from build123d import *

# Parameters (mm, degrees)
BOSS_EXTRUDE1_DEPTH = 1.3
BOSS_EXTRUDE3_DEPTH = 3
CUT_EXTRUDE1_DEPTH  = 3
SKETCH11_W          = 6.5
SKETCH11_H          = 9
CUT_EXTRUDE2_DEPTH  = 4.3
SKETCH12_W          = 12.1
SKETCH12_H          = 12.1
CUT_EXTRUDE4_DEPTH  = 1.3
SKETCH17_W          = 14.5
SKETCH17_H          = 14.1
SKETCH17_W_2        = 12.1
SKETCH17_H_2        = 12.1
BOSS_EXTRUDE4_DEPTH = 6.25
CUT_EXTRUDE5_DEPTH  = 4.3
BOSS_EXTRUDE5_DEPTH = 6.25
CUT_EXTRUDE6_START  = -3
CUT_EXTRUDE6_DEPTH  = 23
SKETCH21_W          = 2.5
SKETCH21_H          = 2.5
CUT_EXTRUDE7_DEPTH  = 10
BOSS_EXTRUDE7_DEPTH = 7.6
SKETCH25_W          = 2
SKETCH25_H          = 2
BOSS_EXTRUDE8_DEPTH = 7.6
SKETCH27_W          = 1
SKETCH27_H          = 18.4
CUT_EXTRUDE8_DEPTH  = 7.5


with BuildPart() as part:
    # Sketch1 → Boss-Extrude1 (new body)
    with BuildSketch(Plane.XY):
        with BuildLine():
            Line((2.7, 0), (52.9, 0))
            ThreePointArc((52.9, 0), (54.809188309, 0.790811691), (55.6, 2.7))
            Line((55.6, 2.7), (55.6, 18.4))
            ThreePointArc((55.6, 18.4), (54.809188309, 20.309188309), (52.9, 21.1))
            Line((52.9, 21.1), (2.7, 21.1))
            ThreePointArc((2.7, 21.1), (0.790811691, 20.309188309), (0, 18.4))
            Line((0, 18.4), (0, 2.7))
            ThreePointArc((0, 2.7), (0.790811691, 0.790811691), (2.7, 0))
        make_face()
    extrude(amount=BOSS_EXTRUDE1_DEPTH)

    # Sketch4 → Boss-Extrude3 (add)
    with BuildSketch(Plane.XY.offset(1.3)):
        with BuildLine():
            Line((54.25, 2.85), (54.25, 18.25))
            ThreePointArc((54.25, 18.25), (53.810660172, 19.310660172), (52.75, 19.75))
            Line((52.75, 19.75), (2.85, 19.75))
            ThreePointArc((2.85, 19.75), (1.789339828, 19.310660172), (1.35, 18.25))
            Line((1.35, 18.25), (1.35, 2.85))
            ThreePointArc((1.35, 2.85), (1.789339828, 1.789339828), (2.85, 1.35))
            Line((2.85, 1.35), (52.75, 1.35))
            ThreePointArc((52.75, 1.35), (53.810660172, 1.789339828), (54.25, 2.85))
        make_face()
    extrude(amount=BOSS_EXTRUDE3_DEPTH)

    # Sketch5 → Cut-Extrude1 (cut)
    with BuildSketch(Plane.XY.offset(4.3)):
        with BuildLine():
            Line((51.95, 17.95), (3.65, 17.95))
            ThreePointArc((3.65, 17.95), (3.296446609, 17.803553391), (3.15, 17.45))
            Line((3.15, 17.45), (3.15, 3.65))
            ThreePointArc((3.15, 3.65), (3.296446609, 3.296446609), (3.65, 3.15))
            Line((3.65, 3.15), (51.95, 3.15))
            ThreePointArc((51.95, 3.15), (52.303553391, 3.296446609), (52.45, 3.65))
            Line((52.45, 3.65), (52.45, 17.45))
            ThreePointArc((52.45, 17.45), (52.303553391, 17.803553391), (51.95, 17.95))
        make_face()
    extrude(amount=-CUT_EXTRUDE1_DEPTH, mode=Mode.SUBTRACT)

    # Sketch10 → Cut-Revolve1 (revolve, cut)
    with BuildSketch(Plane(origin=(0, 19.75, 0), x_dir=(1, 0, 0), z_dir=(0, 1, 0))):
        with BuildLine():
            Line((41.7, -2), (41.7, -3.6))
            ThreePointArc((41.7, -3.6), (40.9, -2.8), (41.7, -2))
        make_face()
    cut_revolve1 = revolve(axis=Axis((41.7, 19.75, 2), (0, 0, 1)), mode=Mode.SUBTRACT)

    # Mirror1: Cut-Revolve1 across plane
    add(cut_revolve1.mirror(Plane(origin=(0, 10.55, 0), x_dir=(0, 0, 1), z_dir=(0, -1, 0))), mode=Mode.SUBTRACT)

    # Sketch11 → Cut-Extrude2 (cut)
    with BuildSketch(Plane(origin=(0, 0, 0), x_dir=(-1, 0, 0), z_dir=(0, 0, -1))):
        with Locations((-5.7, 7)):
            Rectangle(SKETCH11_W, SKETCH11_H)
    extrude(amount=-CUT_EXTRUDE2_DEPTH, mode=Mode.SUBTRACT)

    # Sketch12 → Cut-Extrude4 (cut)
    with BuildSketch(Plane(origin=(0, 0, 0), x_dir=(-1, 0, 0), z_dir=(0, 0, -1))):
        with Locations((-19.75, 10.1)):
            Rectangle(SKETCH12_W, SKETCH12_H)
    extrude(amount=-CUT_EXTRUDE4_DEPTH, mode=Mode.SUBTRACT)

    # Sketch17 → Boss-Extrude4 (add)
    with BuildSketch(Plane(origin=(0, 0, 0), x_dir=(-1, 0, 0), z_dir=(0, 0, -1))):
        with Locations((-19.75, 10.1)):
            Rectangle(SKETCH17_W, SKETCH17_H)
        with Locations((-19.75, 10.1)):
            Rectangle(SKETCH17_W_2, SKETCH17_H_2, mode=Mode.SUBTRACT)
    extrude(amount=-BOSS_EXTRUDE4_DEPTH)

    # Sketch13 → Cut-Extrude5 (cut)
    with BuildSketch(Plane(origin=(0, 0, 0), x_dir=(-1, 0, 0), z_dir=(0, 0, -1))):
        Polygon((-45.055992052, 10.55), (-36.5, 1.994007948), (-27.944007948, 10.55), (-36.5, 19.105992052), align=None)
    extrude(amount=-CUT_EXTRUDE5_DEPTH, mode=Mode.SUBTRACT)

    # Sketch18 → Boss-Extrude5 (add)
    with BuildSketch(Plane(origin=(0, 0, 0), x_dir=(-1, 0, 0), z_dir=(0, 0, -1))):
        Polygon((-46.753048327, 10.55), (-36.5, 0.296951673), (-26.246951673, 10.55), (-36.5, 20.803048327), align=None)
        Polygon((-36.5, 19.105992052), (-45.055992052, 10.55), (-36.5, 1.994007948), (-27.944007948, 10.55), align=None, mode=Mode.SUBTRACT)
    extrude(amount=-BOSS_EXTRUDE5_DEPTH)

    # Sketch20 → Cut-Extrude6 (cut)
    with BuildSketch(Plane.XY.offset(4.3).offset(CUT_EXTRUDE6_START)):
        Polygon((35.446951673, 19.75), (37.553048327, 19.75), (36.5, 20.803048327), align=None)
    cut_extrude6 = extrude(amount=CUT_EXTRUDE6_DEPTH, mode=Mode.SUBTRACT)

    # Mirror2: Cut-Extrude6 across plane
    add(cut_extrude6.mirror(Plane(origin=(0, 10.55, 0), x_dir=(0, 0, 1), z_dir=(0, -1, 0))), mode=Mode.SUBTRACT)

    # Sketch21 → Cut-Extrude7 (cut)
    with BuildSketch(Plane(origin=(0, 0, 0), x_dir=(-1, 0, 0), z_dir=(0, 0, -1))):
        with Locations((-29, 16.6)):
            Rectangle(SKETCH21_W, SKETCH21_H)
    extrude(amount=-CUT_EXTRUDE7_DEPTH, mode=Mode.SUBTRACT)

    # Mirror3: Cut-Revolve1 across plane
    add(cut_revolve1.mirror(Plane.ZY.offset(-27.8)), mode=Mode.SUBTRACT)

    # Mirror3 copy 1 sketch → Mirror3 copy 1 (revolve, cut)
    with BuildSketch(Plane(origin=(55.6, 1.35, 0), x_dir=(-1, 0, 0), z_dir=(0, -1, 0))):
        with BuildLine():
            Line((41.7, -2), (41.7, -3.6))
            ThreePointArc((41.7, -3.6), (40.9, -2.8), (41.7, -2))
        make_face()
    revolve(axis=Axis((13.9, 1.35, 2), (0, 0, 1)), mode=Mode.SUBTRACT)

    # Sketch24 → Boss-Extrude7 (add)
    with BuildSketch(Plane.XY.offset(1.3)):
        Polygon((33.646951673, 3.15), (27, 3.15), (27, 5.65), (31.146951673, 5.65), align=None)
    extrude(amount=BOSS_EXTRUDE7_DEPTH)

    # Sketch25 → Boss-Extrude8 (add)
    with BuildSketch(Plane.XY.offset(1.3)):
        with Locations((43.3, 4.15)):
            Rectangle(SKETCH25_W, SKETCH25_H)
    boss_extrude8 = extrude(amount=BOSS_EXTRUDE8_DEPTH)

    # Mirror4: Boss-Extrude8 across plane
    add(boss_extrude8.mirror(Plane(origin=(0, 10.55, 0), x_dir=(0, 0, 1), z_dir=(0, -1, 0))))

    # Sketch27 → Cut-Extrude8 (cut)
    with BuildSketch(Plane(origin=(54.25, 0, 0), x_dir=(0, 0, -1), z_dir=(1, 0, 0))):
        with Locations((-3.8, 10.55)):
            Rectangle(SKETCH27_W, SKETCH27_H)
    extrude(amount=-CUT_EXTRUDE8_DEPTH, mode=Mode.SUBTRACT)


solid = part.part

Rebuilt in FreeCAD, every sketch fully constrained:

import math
import FreeCAD as App
import Part
import Sketcher
from FreeCAD import Vector
Q = App.Units.Quantity


def add_polygon(sketch, points):
    """Adds a closed chain of lines whose ends are joined by coincident constraints."""
    first, n = sketch.GeometryCount, len(points)
    for a, b in zip(points, points[1:] + points[:1]):
        sketch.addGeometry(Part.LineSegment(App.Vector(*a, 0), App.Vector(*b, 0)), False)
    for i in range(n):
        sketch.addConstraint(Sketcher.Constraint("Coincident", first + i, 2, first + (i + 1) % n, 1))

doc = App.newDocument("Part")
params = doc.addObject("Spreadsheet::Sheet", "Params")
for row, (alias, value) in enumerate([
    ("sketch1_radius", "2.7 mm"),
    ("sketch1_width", "50.2 mm"),
    ("sketch1_height", "15.7 mm"),
    ("pad1_length", "1.3 mm"),
    ("sketch2_radius", "1.5 mm"),
    ("sketch2_width", "49.9 mm"),
    ("sketch2_height", "15.4 mm"),
    ("pad2_length", "3 mm"),
    ("sketch3_radius", "0.5 mm"),
    ("sketch3_width", "48.3 mm"),
    ("sketch3_height", "13.8 mm"),
    ("pocket1_length", "3 mm"),
    ("sketch4_radius", "0.8 mm"),
    ("groove_angle", "360 deg"),
    ("sketch5_height", "9 mm"),
    ("sketch5_width", "6.5 mm"),
    ("pocket2_length", "4.3 mm"),
    ("sketch6_width", "12.1 mm"),
    ("pocket3_length", "1.3 mm"),
    ("sketch7_width", "14.5 mm"),
    ("sketch7_width2", "12.1 mm"),
    ("sketch7_height", "14.1 mm"),
    ("pad3_length", "6.25 mm"),
    ("sketch8_length", "12.1 mm"),
    ("pocket4_length", "4.3 mm"),
    ("sketch9_length", "14.5 mm"),
    ("sketch9_length2", "12.1 mm"),
    ("pad4_length", "6.25 mm"),
    ("pocket5_length", "23 mm"),
    ("sketch11_width", "2.5 mm"),
    ("pocket6_length", "10 mm"),
    ("sketch12_radius", "0.8 mm"),
    ("groove2_angle", "360 deg"),
    ("sketch13_height", "2.5 mm"),
    ("pad5_length", "7.6 mm"),
    ("sketch14_width", "2 mm"),
    ("pad6_length", "7.6 mm"),
    ("sketch15_height", "1 mm"),
    ("sketch15_width", "18.4 mm"),
    ("pocket7_length", "7.5 mm"),
], start=1):
    params.set(f"A{row}", alias)
    params.set(f"B{row}", "=" + value)
    params.setAlias(f"B{row}", alias)

body = doc.addObject("PartDesign::Body", "Body")

# Sketch on XY plane
sketch1 = body.newObject("Sketcher::SketchObject", "Sketch")
sketch1.AttachmentSupport = (doc.getObject("XY_Plane"), [""])
sketch1.MapMode = "FlatFace"
sketch1.addGeometry(Part.LineSegment(Vector(2.7, 0, 0), Vector(52.9, 0, 0)), False)
sketch1.addGeometry(Part.ArcOfCircle(Part.Circle(Vector(52.9, 2.7, 0), Vector(0, 0, 1), 2.7), math.radians(-90), math.radians(0)), False)
sketch1.addGeometry(Part.LineSegment(Vector(55.6, 2.7, 0), Vector(55.6, 18.4, 0)), False)
sketch1.addGeometry(Part.ArcOfCircle(Part.Circle(Vector(52.9, 18.4, 0), Vector(0, 0, 1), 2.7), math.radians(0), math.radians(90)), False)
sketch1.addGeometry(Part.LineSegment(Vector(52.9, 21.1, 0), Vector(2.7, 21.1, 0)), False)
sketch1.addGeometry(Part.ArcOfCircle(Part.Circle(Vector(2.7, 18.4, 0), Vector(0, 0, 1), 2.7), math.radians(90), math.radians(180)), False)
sketch1.addGeometry(Part.LineSegment(Vector(0, 18.4, 0), Vector(0, 2.7, 0)), False)
sketch1.addGeometry(Part.ArcOfCircle(Part.Circle(Vector(2.7, 2.7, 0), Vector(0, 0, 1), 2.7), math.radians(-180), math.radians(-90)), False)
sketch1.addConstraint(Sketcher.Constraint("Tangent", 0, 2, 1, 1))
sketch1.addConstraint(Sketcher.Constraint("Tangent", 1, 2, 2, 1))
sketch1.addConstraint(Sketcher.Constraint("Tangent", 2, 2, 3, 1))
sketch1.addConstraint(Sketcher.Constraint("Tangent", 3, 2, 4, 1))
sketch1.addConstraint(Sketcher.Constraint("Tangent", 4, 2, 5, 1))
sketch1.addConstraint(Sketcher.Constraint("Tangent", 5, 2, 6, 1))
sketch1.addConstraint(Sketcher.Constraint("Tangent", 6, 2, 7, 1))
sketch1.addConstraint(Sketcher.Constraint("Tangent", 7, 2, 0, 1))
sketch1.addConstraint(Sketcher.Constraint("Horizontal", 0))
sketch1.addConstraint(Sketcher.Constraint("Vertical", 2))
sketch1.addConstraint(Sketcher.Constraint("Horizontal", 4))
sketch1.addConstraint(Sketcher.Constraint("Vertical", 6))
sketch1.addConstraint(Sketcher.Constraint("Equal", 1, 3))
sketch1.addConstraint(Sketcher.Constraint("Equal", 3, 5))
sketch1.addConstraint(Sketcher.Constraint("Equal", 5, 7))
sketch1.addConstraint(Sketcher.Constraint("PointOnObject", 0, 2, -1))
sketch1.addConstraint(Sketcher.Constraint("PointOnObject", 5, 2, -2))
sketch1.addConstraint(Sketcher.Constraint("Radius", 1, 2.7))
sketch1.addConstraint(Sketcher.Constraint("DistanceX", 0, 1, 0, 2, 50.2))
sketch1.addConstraint(Sketcher.Constraint("DistanceY", 2, 1, 2, 2, 15.7))
sketch1.setExpression("Constraints[17]", "Params.sketch1_radius")
sketch1.setExpression("Constraints[18]", "Params.sketch1_width")
sketch1.setExpression("Constraints[19]", "Params.sketch1_height")
pad1 = body.newObject("PartDesign::Pad", "Pad")
pad1.Profile = sketch1
pad1.setExpression("Length", "Params.pad1_length")

# Sketch on XY plane
sketch2 = body.newObject("Sketcher::SketchObject", "Sketch001")
sketch2.AttachmentSupport = (doc.getObject("XY_Plane"), [""])
sketch2.MapMode = "FlatFace"
sketch2.AttachmentOffset = App.Placement(Vector(0, 0, 1.3), App.Rotation())
sketch2.addGeometry(Part.LineSegment(Vector(54.2, 2.9, 0), Vector(54.2, 18.2, 0)), False)
sketch2.addGeometry(Part.ArcOfCircle(Part.Circle(Vector(52.8, 18.3, 0), Vector(0, 0, 1), 1.5), math.radians(0), math.radians(90)), False)
sketch2.addGeometry(Part.LineSegment(Vector(52.8, 19.8, 0), Vector(2.9, 19.8, 0)), False)
sketch2.addGeometry(Part.ArcOfCircle(Part.Circle(Vector(2.8, 18.3, 0), Vector(0, 0, 1), 1.5), math.radians(90), math.radians(180)), False)
sketch2.addGeometry(Part.LineSegment(Vector(1.4, 18.2, 0), Vector(1.4, 2.9, 0)), False)
sketch2.addGeometry(Part.ArcOfCircle(Part.Circle(Vector(2.8, 2.8, 0), Vector(0, 0, 1), 1.5), math.radians(180), math.radians(270)), False)
sketch2.addGeometry(Part.LineSegment(Vector(2.9, 1.4, 0), Vector(52.8, 1.4, 0)), False)
sketch2.addGeometry(Part.ArcOfCircle(Part.Circle(Vector(52.8, 2.8, 0), Vector(0, 0, 1), 1.5), math.radians(-90), math.radians(0)), False)
sketch2.addConstraint(Sketcher.Constraint("Tangent", 0, 2, 1, 1))
sketch2.addConstraint(Sketcher.Constraint("Tangent", 1, 2, 2, 1))
sketch2.addConstraint(Sketcher.Constraint("Tangent", 2, 2, 3, 1))
sketch2.addConstraint(Sketcher.Constraint("Tangent", 3, 2, 4, 1))
sketch2.addConstraint(Sketcher.Constraint("Tangent", 4, 2, 5, 1))
sketch2.addConstraint(Sketcher.Constraint("Tangent", 5, 2, 6, 1))
sketch2.addConstraint(Sketcher.Constraint("Tangent", 6, 2, 7, 1))
sketch2.addConstraint(Sketcher.Constraint("Tangent", 7, 2, 0, 1))
sketch2.addConstraint(Sketcher.Constraint("Vertical", 0))
sketch2.addConstraint(Sketcher.Constraint("Horizontal", 2))
sketch2.addConstraint(Sketcher.Constraint("Vertical", 4))
sketch2.addConstraint(Sketcher.Constraint("Horizontal", 6))
sketch2.addConstraint(Sketcher.Constraint("Equal", 1, 3))
sketch2.addConstraint(Sketcher.Constraint("Equal", 3, 5))
sketch2.addConstraint(Sketcher.Constraint("Equal", 5, 7))
sketch2.addConstraint(Sketcher.Constraint("Radius", 1, 1.5))
sketch2.addConstraint(Sketcher.Constraint("DistanceX", 2, 2, 2, 1, 49.9))
sketch2.addConstraint(Sketcher.Constraint("DistanceY", 0, 1, 0, 2, 15.4))
sketch2.addConstraint(Sketcher.Constraint("DistanceX", -1, 1, 1, 3, 52.75))
sketch2.addConstraint(Sketcher.Constraint("DistanceY", -1, 1, 1, 3, 18.25))
sketch2.setExpression("Constraints[15]", "Params.sketch2_radius")
sketch2.setExpression("Constraints[16]", "Params.sketch2_width")
sketch2.setExpression("Constraints[17]", "Params.sketch2_height")
pad2 = body.newObject("PartDesign::Pad", "Pad001")
pad2.Profile = sketch2
pad2.setExpression("Length", "Params.pad2_length")

# Sketch on XY plane
sketch3 = body.newObject("Sketcher::SketchObject", "Sketch002")
sketch3.AttachmentSupport = (doc.getObject("XY_Plane"), [""])
sketch3.MapMode = "FlatFace"
sketch3.AttachmentOffset = App.Placement(Vector(0, 0, 4.3), App.Rotation())
sketch3.addGeometry(Part.LineSegment(Vector(51.95, 17.95, 0), Vector(3.65, 17.95, 0)), False)
sketch3.addGeometry(Part.ArcOfCircle(Part.Circle(Vector(3.65, 17.45, 0), Vector(0, 0, 1), 0.5), math.radians(90), math.radians(180)), False)
sketch3.addGeometry(Part.LineSegment(Vector(3.15, 17.45, 0), Vector(3.15, 3.65, 0)), False)
sketch3.addGeometry(Part.ArcOfCircle(Part.Circle(Vector(3.65, 3.65, 0), Vector(0, 0, 1), 0.5), math.radians(180), math.radians(270)), False)
sketch3.addGeometry(Part.LineSegment(Vector(3.65, 3.15, 0), Vector(51.95, 3.15, 0)), False)
sketch3.addGeometry(Part.ArcOfCircle(Part.Circle(Vector(51.95, 3.65, 0), Vector(0, 0, 1), 0.5), math.radians(-90), math.radians(0)), False)
sketch3.addGeometry(Part.LineSegment(Vector(52.45, 3.65, 0), Vector(52.45, 17.45, 0)), False)
sketch3.addGeometry(Part.ArcOfCircle(Part.Circle(Vector(51.95, 17.45, 0), Vector(0, 0, 1), 0.5), math.radians(0), math.radians(90)), False)
sketch3.addConstraint(Sketcher.Constraint("Tangent", 0, 2, 1, 1))
sketch3.addConstraint(Sketcher.Constraint("Tangent", 1, 2, 2, 1))
sketch3.addConstraint(Sketcher.Constraint("Tangent", 2, 2, 3, 1))
sketch3.addConstraint(Sketcher.Constraint("Tangent", 3, 2, 4, 1))
sketch3.addConstraint(Sketcher.Constraint("Tangent", 4, 2, 5, 1))
sketch3.addConstraint(Sketcher.Constraint("Tangent", 5, 2, 6, 1))
sketch3.addConstraint(Sketcher.Constraint("Tangent", 6, 2, 7, 1))
sketch3.addConstraint(Sketcher.Constraint("Tangent", 7, 2, 0, 1))
sketch3.addConstraint(Sketcher.Constraint("Horizontal", 0))
sketch3.addConstraint(Sketcher.Constraint("Vertical", 2))
sketch3.addConstraint(Sketcher.Constraint("Horizontal", 4))
sketch3.addConstraint(Sketcher.Constraint("Vertical", 6))
sketch3.addConstraint(Sketcher.Constraint("Equal", 1, 3))
sketch3.addConstraint(Sketcher.Constraint("Equal", 3, 5))
sketch3.addConstraint(Sketcher.Constraint("Equal", 5, 7))
sketch3.addConstraint(Sketcher.Constraint("Radius", 1, 0.5))
sketch3.addConstraint(Sketcher.Constraint("DistanceX", 0, 2, 0, 1, 48.3))
sketch3.addConstraint(Sketcher.Constraint("DistanceY", 2, 2, 2, 1, 13.8))
sketch3.addConstraint(Sketcher.Constraint("DistanceX", -1, 1, 1, 3, 3.65))
sketch3.addConstraint(Sketcher.Constraint("DistanceY", -1, 1, 1, 3, 17.45))
sketch3.setExpression("Constraints[15]", "Params.sketch3_radius")
sketch3.setExpression("Constraints[16]", "Params.sketch3_width")
sketch3.setExpression("Constraints[17]", "Params.sketch3_height")
pocket1 = body.newObject("PartDesign::Pocket", "Pocket")
pocket1.Profile = sketch3
pocket1.setExpression("Length", "Params.pocket1_length")

# Sketch on XZ plane
sketch4 = body.newObject("Sketcher::SketchObject", "Sketch003")
sketch4.AttachmentSupport = (doc.getObject("XZ_Plane"), [""])
sketch4.MapMode = "FlatFace"
sketch4.AttachmentOffset = App.Placement(Vector(0, 0, -19.75), App.Rotation())
sketch4.addGeometry(Part.LineSegment(Vector(41.7, 3.6, 0), Vector(41.7, 2, 0)), False)
sketch4.addGeometry(Part.ArcOfCircle(Part.Circle(Vector(41.7, 2.8, 0), Vector(0, 0, 1), 0.8), math.radians(90), math.radians(270)), False)
sketch4.addGeometry(Part.LineSegment(Vector(41.7, 2, 0), Vector(41.7, 3.6, 0)), True)  # axis
sketch4.addConstraint(Sketcher.Constraint("Coincident", 0, 1, 1, 1))
sketch4.addConstraint(Sketcher.Constraint("Coincident", 1, 2, 0, 2))
sketch4.addConstraint(Sketcher.Constraint("Vertical", 0))
sketch4.addConstraint(Sketcher.Constraint("Vertical", 2))
sketch4.addConstraint(Sketcher.Constraint("Coincident", 2, 1, 1, 2))
sketch4.addConstraint(Sketcher.Constraint("Vertical", 1, 3, 0, 1))
sketch4.addConstraint(Sketcher.Constraint("Equal", 0, 2))
sketch4.addConstraint(Sketcher.Constraint("Radius", 1, 0.8))
sketch4.addConstraint(Sketcher.Constraint("DistanceY", -1, 1, 1, 2, 2.0))
sketch4.addConstraint(Sketcher.Constraint("DistanceX", -1, 1, 1, 3, 41.7))
sketch4.setExpression("Constraints[7]", "Params.sketch4_radius")
groove = body.newObject("PartDesign::Groove", "Groove")
groove.Profile = sketch4
groove.ReferenceAxis = (sketch4, ["Axis0"])
groove.setExpression("Angle", "Params.groove_angle")
doc.recompute()

datumplane = body.newObject("PartDesign::Plane", "DatumPlane")
datumplane.AttachmentSupport = (doc.getObject("XZ_Plane"), [""])
datumplane.MapMode = "FlatFace"
datumplane.AttachmentOffset = App.Placement(Vector(0, 0, -10.55), App.Rotation())
mirrored = body.newObject("PartDesign::Mirrored", "Mirrored")
mirrored.Originals = [groove]
mirrored.MirrorPlane = (datumplane, [""])
body.Tip = mirrored

# Sketch on XY plane
sketch5 = body.newObject("Sketcher::SketchObject", "Sketch004")
sketch5.AttachmentSupport = (doc.getObject("XY_Plane"), [""])
sketch5.MapMode = "FlatFace"
add_polygon(sketch5, [(9, 12), (9, 2), (2, 2), (2, 12)])  # lines 0-3
sketch5.addConstraint(Sketcher.Constraint("Vertical", 0))
sketch5.addConstraint(Sketcher.Constraint("Horizontal", 1))
sketch5.addConstraint(Sketcher.Constraint("Vertical", 2))
sketch5.addConstraint(Sketcher.Constraint("Horizontal", 3))
sketch5.addConstraint(Sketcher.Constraint("DistanceY", 0, 2, 0, 1, 9.0))
sketch5.addConstraint(Sketcher.Constraint("DistanceX", 1, 2, 1, 1, 6.5))
sketch5.addConstraint(Sketcher.Constraint("DistanceY", -1, 1, 0, 2, 2.5))
sketch5.addConstraint(Sketcher.Constraint("DistanceX", -1, 1, 0, 2, 8.95))
sketch5.setExpression("Constraints[8]", "Params.sketch5_height")
sketch5.setExpression("Constraints[9]", "Params.sketch5_width")
pocket2 = body.newObject("PartDesign::Pocket", "Pocket001")
pocket2.Profile = sketch5
pocket2.setExpression("Length", "Params.pocket2_length")
pocket2.Reversed = True

# Sketch on XY plane
sketch6 = body.newObject("Sketcher::SketchObject", "Sketch005")
sketch6.AttachmentSupport = (doc.getObject("XY_Plane"), [""])
sketch6.MapMode = "FlatFace"
add_polygon(sketch6, [(26, 16), (26, 4), (14, 4), (14, 16)])  # lines 0-3
sketch6.addConstraint(Sketcher.Constraint("Vertical", 0))
sketch6.addConstraint(Sketcher.Constraint("Horizontal", 1))
sketch6.addConstraint(Sketcher.Constraint("Vertical", 2))
sketch6.addConstraint(Sketcher.Constraint("Horizontal", 3))
sketch6.addConstraint(Sketcher.Constraint("Equal", 3, 0))
sketch6.addConstraint(Sketcher.Constraint("DistanceX", 1, 2, 1, 1, 12.1))
sketch6.addConstraint(Sketcher.Constraint("DistanceX", -1, 1, 0, 2, 25.8))
sketch6.addConstraint(Sketcher.Constraint("DistanceY", -1, 1, 0, 2, 4.05))
sketch6.setExpression("Constraints[9]", "Params.sketch6_width")
pocket3 = body.newObject("PartDesign::Pocket", "Pocket002")
pocket3.Profile = sketch6
pocket3.setExpression("Length", "Params.pocket3_length")
pocket3.Reversed = True

# Sketch on XY plane
sketch7 = body.newObject("Sketcher::SketchObject", "Sketch006")
sketch7.AttachmentSupport = (doc.getObject("XY_Plane"), [""])
sketch7.MapMode = "FlatFace"
add_polygon(sketch7, [(27, 17), (27, 3), (12, 3), (12, 17)])  # lines 0-3
add_polygon(sketch7, [(14, 4), (26, 4), (26, 16), (14, 16)])  # lines 4-7
sketch7.addConstraint(Sketcher.Constraint("Vertical", 0))
sketch7.addConstraint(Sketcher.Constraint("Horizontal", 1))
sketch7.addConstraint(Sketcher.Constraint("Vertical", 2))
sketch7.addConstraint(Sketcher.Constraint("Horizontal", 3))
sketch7.addConstraint(Sketcher.Constraint("Horizontal", 4))
sketch7.addConstraint(Sketcher.Constraint("Vertical", 5))
sketch7.addConstraint(Sketcher.Constraint("Horizontal", 6))
sketch7.addConstraint(Sketcher.Constraint("Vertical", 7))
sketch7.addConstraint(Sketcher.Constraint("Equal", 6, 5))
sketch7.addConstraint(Sketcher.Constraint("DistanceX", 1, 2, 1, 1, 14.5))
sketch7.addConstraint(Sketcher.Constraint("DistanceX", 4, 1, 4, 2, 12.1))
sketch7.addConstraint(Sketcher.Constraint("DistanceY", 0, 2, 0, 1, 14.1))
sketch7.addConstraint(Sketcher.Constraint("DistanceX", -1, 1, 0, 2, 27.0))
sketch7.addConstraint(Sketcher.Constraint("DistanceY", 0, 2, 4, 2, 1.0))
sketch7.addConstraint(Sketcher.Constraint("DistanceX", -1, 1, 4, 2, 25.8))
sketch7.addConstraint(Sketcher.Constraint("DistanceY", -1, 1, 0, 2, 3.05))
sketch7.setExpression("Constraints[17]", "Params.sketch7_width")
sketch7.setExpression("Constraints[18]", "Params.sketch7_width2")
sketch7.setExpression("Constraints[19]", "Params.sketch7_height")
pad3 = body.newObject("PartDesign::Pad", "Pad002")
pad3.Profile = sketch7
pad3.setExpression("Length", "Params.pad3_length")

# Sketch on XY plane
sketch8 = body.newObject("Sketcher::SketchObject", "Sketch007")
sketch8.AttachmentSupport = (doc.getObject("XY_Plane"), [""])
sketch8.MapMode = "FlatFace"
add_polygon(sketch8, [(45, 11), (36, 2), (28, 11), (36, 19)])  # lines 0-3
sketch8.addConstraint(Sketcher.Constraint("Perpendicular", 0, 1))
sketch8.addConstraint(Sketcher.Constraint("Perpendicular", 1, 2))
sketch8.addConstraint(Sketcher.Constraint("Perpendicular", 2, 3))
sketch8.addConstraint(Sketcher.Constraint("Horizontal", 1, 2, 3, 2))
sketch8.addConstraint(Sketcher.Constraint("Vertical", 0, 2, 2, 2))
sketch8.addConstraint(Sketcher.Constraint("Distance", 0, 12.1))
sketch8.addConstraint(Sketcher.Constraint("DistanceX", -1, 1, 0, 2, 36.5))
sketch8.addConstraint(Sketcher.Constraint("DistanceY", -1, 1, 1, 2, 10.55))
sketch8.setExpression("Constraints[9]", "Params.sketch8_length")
pocket4 = body.newObject("PartDesign::Pocket", "Pocket003")
pocket4.Profile = sketch8
pocket4.setExpression("Length", "Params.pocket4_length")
pocket4.Reversed = True

# Sketch on XY plane
sketch9 = body.newObject("Sketcher::SketchObject", "Sketch008")
sketch9.AttachmentSupport = (doc.getObject("XY_Plane"), [""])
sketch9.MapMode = "FlatFace"
add_polygon(sketch9, [(47, 11), (36, 0), (26, 11), (36, 21)])  # lines 0-3
add_polygon(sketch9, [(45, 11), (36, 19), (28, 11), (36, 2)])  # lines 4-7
sketch9.addConstraint(Sketcher.Constraint("Perpendicular", 0, 1))
sketch9.addConstraint(Sketcher.Constraint("Perpendicular", 1, 2))
sketch9.addConstraint(Sketcher.Constraint("Perpendicular", 2, 3))
sketch9.addConstraint(Sketcher.Constraint("Parallel", 3, 4))
sketch9.addConstraint(Sketcher.Constraint("Perpendicular", 4, 5))
sketch9.addConstraint(Sketcher.Constraint("Perpendicular", 5, 6))
sketch9.addConstraint(Sketcher.Constraint("Perpendicular", 6, 7))
sketch9.addConstraint(Sketcher.Constraint("Horizontal", 1, 2, 3, 2))
sketch9.addConstraint(Sketcher.Constraint("Horizontal", 3, 2, 5, 2))
sketch9.addConstraint(Sketcher.Constraint("Horizontal", 5, 2, 7, 2))
sketch9.addConstraint(Sketcher.Constraint("Vertical", 0, 2, 2, 2))
sketch9.addConstraint(Sketcher.Constraint("Vertical", 2, 2, 4, 2))
sketch9.addConstraint(Sketcher.Constraint("Distance", 0, 14.5))
sketch9.addConstraint(Sketcher.Constraint("Distance", 4, 12.1))
sketch9.addConstraint(Sketcher.Constraint("DistanceX", -1, 1, 0, 2, 36.5))
sketch9.addConstraint(Sketcher.Constraint("DistanceY", -1, 1, 1, 2, 10.55))
sketch9.setExpression("Constraints[20]", "Params.sketch9_length")
sketch9.setExpression("Constraints[21]", "Params.sketch9_length2")
pad4 = body.newObject("PartDesign::Pad", "Pad003")
pad4.Profile = sketch9
pad4.setExpression("Length", "Params.pad4_length")

# Sketch on XY plane
sketch10 = body.newObject("Sketcher::SketchObject", "Sketch009")
sketch10.AttachmentSupport = (doc.getObject("XY_Plane"), [""])
sketch10.MapMode = "FlatFace"
sketch10.AttachmentOffset = App.Placement(Vector(0, 0, 1.3), App.Rotation())
add_polygon(sketch10, [(35.4, 19.8), (37.6, 19.8), (36.5, 20.8)])  # lines 0-2
sketch10.addConstraint(Sketcher.Constraint("Horizontal", 0))
sketch10.addConstraint(Sketcher.Constraint("Perpendicular", 1, 2))
sketch10.addConstraint(Sketcher.Constraint("Equal", 1, 2))
sketch10.addConstraint(Sketcher.Constraint("DistanceX", -1, 1, 1, 2, 36.5))
sketch10.addConstraint(Sketcher.Constraint("DistanceY", -1, 1, 0, 2, 19.75))
sketch10.addConstraint(Sketcher.Constraint("DistanceX", 0, 1, 0, 2, 2.106097))
pocket5 = body.newObject("PartDesign::Pocket", "Pocket004")
pocket5.Profile = sketch10
pocket5.setExpression("Length", "Params.pocket5_length")
pocket5.Reversed = True
doc.recompute()

datumplane2 = body.newObject("PartDesign::Plane", "DatumPlane001")
datumplane2.AttachmentSupport = (doc.getObject("XZ_Plane"), [""])
datumplane2.MapMode = "FlatFace"
datumplane2.AttachmentOffset = App.Placement(Vector(0, 0, -10.55), App.Rotation())
mirrored2 = body.newObject("PartDesign::Mirrored", "Mirrored001")
mirrored2.Originals = [pocket5]
mirrored2.MirrorPlane = (datumplane2, [""])
body.Tip = mirrored2

# Sketch on XY plane
sketch11 = body.newObject("Sketcher::SketchObject", "Sketch010")
sketch11.AttachmentSupport = (doc.getObject("XY_Plane"), [""])
sketch11.MapMode = "FlatFace"
add_polygon(sketch11, [(30.2, 17.9), (30.2, 15.3), (27.8, 15.3), (27.8, 17.9)])  # lines 0-3
sketch11.addConstraint(Sketcher.Constraint("Vertical", 0))
sketch11.addConstraint(Sketcher.Constraint("Horizontal", 1))
sketch11.addConstraint(Sketcher.Constraint("Vertical", 2))
sketch11.addConstraint(Sketcher.Constraint("Horizontal", 3))
sketch11.addConstraint(Sketcher.Constraint("Equal", 3, 0))
sketch11.addConstraint(Sketcher.Constraint("DistanceX", 1, 2, 1, 1, 2.5))
sketch11.addConstraint(Sketcher.Constraint("DistanceX", -1, 1, 0, 2, 30.25))
sketch11.addConstraint(Sketcher.Constraint("DistanceY", -1, 1, 0, 2, 15.35))
sketch11.setExpression("Constraints[9]", "Params.sketch11_width")
pocket6 = body.newObject("PartDesign::Pocket", "Pocket005")
pocket6.Profile = sketch11
pocket6.setExpression("Length", "Params.pocket6_length")
pocket6.Reversed = True
doc.recompute()

datumplane3 = body.newObject("PartDesign::Plane", "DatumPlane002")
datumplane3.AttachmentSupport = (doc.getObject("YZ_Plane"), [""])
datumplane3.MapMode = "FlatFace"
datumplane3.AttachmentOffset = App.Placement(Vector(0, 0, 27.8), App.Rotation())
mirrored3 = body.newObject("PartDesign::Mirrored", "Mirrored002")
mirrored3.Originals = [groove]
mirrored3.MirrorPlane = (datumplane3, [""])
body.Tip = mirrored3

# Sketch on XZ plane
sketch12 = body.newObject("Sketcher::SketchObject", "Sketch011")
sketch12.AttachmentSupport = (doc.getObject("XZ_Plane"), [""])
sketch12.MapMode = "FlatFace"
sketch12.AttachmentOffset = App.Placement(Vector(0, 0, -1.35), App.Rotation())
sketch12.addGeometry(Part.LineSegment(Vector(13.9, 3.6, 0), Vector(13.9, 2, 0)), False)
sketch12.addGeometry(Part.ArcOfCircle(Part.Circle(Vector(13.9, 2.8, 0), Vector(0, 0, 1), 0.8), math.radians(-90), math.radians(90)), False)
sketch12.addGeometry(Part.LineSegment(Vector(13.9, 2, 0), Vector(13.9, 3.6, 0)), True)  # axis
sketch12.addConstraint(Sketcher.Constraint("Coincident", 0, 1, 1, 2))
sketch12.addConstraint(Sketcher.Constraint("Coincident", 1, 1, 0, 2))
sketch12.addConstraint(Sketcher.Constraint("Vertical", 0))
sketch12.addConstraint(Sketcher.Constraint("Vertical", 2))
sketch12.addConstraint(Sketcher.Constraint("Coincident", 2, 1, 1, 1))
sketch12.addConstraint(Sketcher.Constraint("Vertical", 1, 3, 0, 1))
sketch12.addConstraint(Sketcher.Constraint("Equal", 0, 2))
sketch12.addConstraint(Sketcher.Constraint("Radius", 1, 0.8))
sketch12.addConstraint(Sketcher.Constraint("DistanceY", -1, 1, 1, 1, 2.0))
sketch12.addConstraint(Sketcher.Constraint("DistanceX", -1, 1, 1, 3, 13.9))
sketch12.setExpression("Constraints[7]", "Params.sketch12_radius")
groove2 = body.newObject("PartDesign::Groove", "Groove001")
groove2.Profile = sketch12
groove2.ReferenceAxis = (sketch12, ["Axis0"])
groove2.setExpression("Angle", "Params.groove2_angle")

# Sketch on XY plane
sketch13 = body.newObject("Sketcher::SketchObject", "Sketch012")
sketch13.AttachmentSupport = (doc.getObject("XY_Plane"), [""])
sketch13.MapMode = "FlatFace"
sketch13.AttachmentOffset = App.Placement(Vector(0, 0, 1.3), App.Rotation())
add_polygon(sketch13, [(27, 3.1), (33.6, 3.1), (31.1, 5.7), (27, 5.7)])  # lines 0-3
sketch13.addConstraint(Sketcher.Constraint("Horizontal", 0))
sketch13.addConstraint(Sketcher.Constraint("Horizontal", 2))
sketch13.addConstraint(Sketcher.Constraint("Vertical", 3))
sketch13.addConstraint(Sketcher.Constraint("Angle", 1, Q("135 deg")))
sketch13.addConstraint(Sketcher.Constraint("DistanceY", 3, 2, 3, 1, 2.5))
sketch13.addConstraint(Sketcher.Constraint("DistanceX", -1, 1, 2, 2, 27.0))
sketch13.addConstraint(Sketcher.Constraint("DistanceY", -1, 1, 0, 2, 3.15))
sketch13.addConstraint(Sketcher.Constraint("DistanceX", 0, 1, 0, 2, 6.646952))
sketch13.setExpression("Constraints[8]", "Params.sketch13_height")
pad5 = body.newObject("PartDesign::Pad", "Pad004")
pad5.Profile = sketch13
pad5.setExpression("Length", "Params.pad5_length")

# Sketch on XY plane
sketch14 = body.newObject("Sketcher::SketchObject", "Sketch013")
sketch14.AttachmentSupport = (doc.getObject("XY_Plane"), [""])
sketch14.MapMode = "FlatFace"
sketch14.AttachmentOffset = App.Placement(Vector(0, 0, 1.3), App.Rotation())
add_polygon(sketch14, [(42.3, 5.2), (42.3, 3.1), (44.3, 3.1), (44.3, 5.2)])  # lines 0-3
sketch14.addConstraint(Sketcher.Constraint("Vertical", 0))
sketch14.addConstraint(Sketcher.Constraint("Horizontal", 1))
sketch14.addConstraint(Sketcher.Constraint("Vertical", 2))
sketch14.addConstraint(Sketcher.Constraint("Horizontal", 3))
sketch14.addConstraint(Sketcher.Constraint("Equal", 3, 0))
sketch14.addConstraint(Sketcher.Constraint("DistanceX", 1, 1, 1, 2, 2.0))
sketch14.addConstraint(Sketcher.Constraint("DistanceX", -1, 1, 0, 2, 42.3))
sketch14.addConstraint(Sketcher.Constraint("DistanceY", -1, 1, 0, 2, 3.15))
sketch14.setExpression("Constraints[9]", "Params.sketch14_width")
pad6 = body.newObject("PartDesign::Pad", "Pad005")
pad6.Profile = sketch14
pad6.setExpression("Length", "Params.pad6_length")
doc.recompute()

datumplane4 = body.newObject("PartDesign::Plane", "DatumPlane003")
datumplane4.AttachmentSupport = (doc.getObject("XZ_Plane"), [""])
datumplane4.MapMode = "FlatFace"
datumplane4.AttachmentOffset = App.Placement(Vector(0, 0, -10.55), App.Rotation())
mirrored4 = body.newObject("PartDesign::Mirrored", "Mirrored003")
mirrored4.Originals = [pad6]
mirrored4.MirrorPlane = (datumplane4, [""])
body.Tip = mirrored4

# Sketch on YZ plane
sketch15 = body.newObject("Sketcher::SketchObject", "Sketch014")
sketch15.AttachmentSupport = (doc.getObject("YZ_Plane"), [""])
sketch15.MapMode = "FlatFace"
sketch15.AttachmentOffset = App.Placement(Vector(0, 0, 54.25), App.Rotation())
add_polygon(sketch15, [(19.8, 4.3), (1.4, 4.3), (1.4, 3.3), (19.8, 3.3)])  # lines 0-3
sketch15.addConstraint(Sketcher.Constraint("Horizontal", 0))
sketch15.addConstraint(Sketcher.Constraint("Vertical", 1))
sketch15.addConstraint(Sketcher.Constraint("Horizontal", 2))
sketch15.addConstraint(Sketcher.Constraint("Vertical", 3))
sketch15.addConstraint(Sketcher.Constraint("DistanceY", 1, 2, 1, 1, 1.0))
sketch15.addConstraint(Sketcher.Constraint("DistanceX", 0, 2, 0, 1, 18.4))
sketch15.addConstraint(Sketcher.Constraint("DistanceY", -1, 1, 0, 2, 4.3))
sketch15.addConstraint(Sketcher.Constraint("DistanceX", -1, 1, 0, 2, 1.35))
sketch15.setExpression("Constraints[8]", "Params.sketch15_height")
sketch15.setExpression("Constraints[9]", "Params.sketch15_width")
pocket7 = body.newObject("PartDesign::Pocket", "Pocket006")
pocket7.Profile = sketch15
pocket7.setExpression("Length", "Params.pocket7_length")

doc.recompute()
